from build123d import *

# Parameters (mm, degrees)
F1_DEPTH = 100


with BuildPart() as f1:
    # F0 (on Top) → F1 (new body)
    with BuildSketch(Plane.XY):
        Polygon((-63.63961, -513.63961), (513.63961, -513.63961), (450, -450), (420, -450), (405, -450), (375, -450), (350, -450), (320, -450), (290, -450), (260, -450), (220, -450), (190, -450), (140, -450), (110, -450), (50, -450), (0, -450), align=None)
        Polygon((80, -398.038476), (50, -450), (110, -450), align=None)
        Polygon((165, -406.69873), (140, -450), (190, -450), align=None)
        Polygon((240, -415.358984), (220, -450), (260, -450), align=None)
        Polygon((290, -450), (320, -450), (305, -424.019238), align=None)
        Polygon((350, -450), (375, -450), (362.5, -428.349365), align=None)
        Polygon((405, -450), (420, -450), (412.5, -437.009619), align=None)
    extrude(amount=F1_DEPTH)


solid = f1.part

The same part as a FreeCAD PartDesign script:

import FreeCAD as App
import Part
import Sketcher

V = App.Vector
Q = App.Units.Quantity


def add_polygon(sketch, points):
    """Adds a closed chain of lines whose ends are joined by coincident constraints."""
    first, n = sketch.GeometryCount, len(points)
    for a, b in zip(points, points[1:] + points[:1]):
        sketch.addGeometry(Part.LineSegment(App.Vector(*a, 0), App.Vector(*b, 0)), False)
    for i in range(n):
        sketch.addConstraint(Sketcher.Constraint("Coincident", first + i, 2, first + (i + 1) % n, 1))

doc = App.newDocument("Part")
body = doc.addObject("PartDesign::Body", "Body")

# Sketch on XY plane
sketch1 = doc.addObject("Sketcher::SketchObject", "Sketch")
body.addObject(sketch1)
sketch1.AttachmentSupport = (doc.XY_Plane, [""])
sketch1.MapMode = "FlatFace"
add_polygon(sketch1, [(-64, -514), (514, -514), (450, -450), (420, -450), (412, -437), (405, -450), (375, -450), (362, -428), (350, -450), (320, -450), (305, -424), (290, -450), (260, -450), (240, -415), (220, -450), (190, -450), (165, -407), (140, -450), (110, -450), (80, -398), (50, -450), (0, -450)])  # lines 0-21
sketch1.addConstraint(Sketcher.Constraint("Horizontal", 0))
sketch1.addConstraint(Sketcher.Constraint("Horizontal", 2))
sketch1.addConstraint(Sketcher.Constraint("Horizontal", 5))
sketch1.addConstraint(Sketcher.Constraint("Horizontal", 8))
sketch1.addConstraint(Sketcher.Constraint("Horizontal", 11))
sketch1.addConstraint(Sketcher.Constraint("Horizontal", 14))
sketch1.addConstraint(Sketcher.Constraint("Horizontal", 17))
sketch1.addConstraint(Sketcher.Constraint("Horizontal", 20))
sketch1.addConstraint(Sketcher.Constraint("PointOnObject", 20, 2, -2))
sketch1.addConstraint(Sketcher.Constraint("Parallel", 3, 6))
sketch1.addConstraint(Sketcher.Constraint("Parallel", 4, 7))
sketch1.addConstraint(Sketcher.Constraint("Parallel", 6, 9))
sketch1.addConstraint(Sketcher.Constraint("Parallel", 7, 10))
sketch1.addConstraint(Sketcher.Constraint("Parallel", 9, 12))
sketch1.addConstraint(Sketcher.Constraint("Parallel", 10, 13))
sketch1.addConstraint(Sketcher.Constraint("Parallel", 12, 15))
sketch1.addConstraint(Sketcher.Constraint("Parallel", 13, 16))
sketch1.addConstraint(Sketcher.Constraint("Parallel", 15, 18))
sketch1.addConstraint(Sketcher.Constraint("Parallel", 16, 19))
sketch1.addConstraint(Sketcher.Constraint("Perpendicular", 1, 21))
sketch1.addConstraint(Sketcher.Constraint("Horizontal", 2, 2, 4, 2))
sketch1.addConstraint(Sketcher.Constraint("Horizontal", 5, 2, 7, 2))
sketch1.addConstraint(Sketcher.Constraint("Horizontal", 8, 2, 10, 2))
sketch1.addConstraint(Sketcher.Constraint("Horizontal", 11, 2, 13, 2))
sketch1.addConstraint(Sketcher.Constraint("Horizontal", 14, 2, 16, 2))
sketch1.addConstraint(Sketcher.Constraint("Horizontal", 17, 2, 19, 2))
sketch1.addConstraint(Sketcher.Constraint("Equal", 2, 5))
sketch1.addConstraint(Sketcher.Constraint("Equal", 5, 8))
sketch1.addConstraint(Sketcher.Constraint("Equal", 8, 11))
sketch1.addConstraint(Sketcher.Constraint("Equal", 11, 14))
sketch1.addConstraint(Sketcher.Constraint("Equal", 14, 17))
sketch1.addConstraint(Sketcher.Constraint("Equal", 3, 4))
sketch1.addConstraint(Sketcher.Constraint("Equal", 1, 21))
sketch1.addConstraint(Sketcher.Constraint("DistanceX", 2, 2, 2, 1, 30.0))
sketch1.addConstraint(Sketcher.Constraint("DistanceX", 20, 2, 20, 1, 50.0))
sketch1.addConstraint(Sketcher.Constraint("Angle", 3, Q("120 deg")))
sketch1.addConstraint(Sketcher.Constraint("Distance", 1, 90.0))
sketch1.addConstraint(Sketcher.Constraint("Distance", 3, 15.0))
sketch1.addConstraint(Sketcher.Constraint("Distance", 6, 25.0))
sketch1.addConstraint(Sketcher.Constraint("Distance", 9, 30.0))
sketch1.addConstraint(Sketcher.Constraint("Distance", 12, 40.0))
sketch1.addConstraint(Sketcher.Constraint("Distance", 15, 50.0))
sketch1.addConstraint(Sketcher.Constraint("Distance", 18, 60.0))
sketch1.addConstraint(Sketcher.Constraint("DistanceY", 1, 2, -1, 1, 450.0))
pad1 = doc.addObject("PartDesign::Pad", "Pad")
body.addObject(pad1)
pad1.Profile = sketch1
pad1.Length = 100

doc.recompute()
